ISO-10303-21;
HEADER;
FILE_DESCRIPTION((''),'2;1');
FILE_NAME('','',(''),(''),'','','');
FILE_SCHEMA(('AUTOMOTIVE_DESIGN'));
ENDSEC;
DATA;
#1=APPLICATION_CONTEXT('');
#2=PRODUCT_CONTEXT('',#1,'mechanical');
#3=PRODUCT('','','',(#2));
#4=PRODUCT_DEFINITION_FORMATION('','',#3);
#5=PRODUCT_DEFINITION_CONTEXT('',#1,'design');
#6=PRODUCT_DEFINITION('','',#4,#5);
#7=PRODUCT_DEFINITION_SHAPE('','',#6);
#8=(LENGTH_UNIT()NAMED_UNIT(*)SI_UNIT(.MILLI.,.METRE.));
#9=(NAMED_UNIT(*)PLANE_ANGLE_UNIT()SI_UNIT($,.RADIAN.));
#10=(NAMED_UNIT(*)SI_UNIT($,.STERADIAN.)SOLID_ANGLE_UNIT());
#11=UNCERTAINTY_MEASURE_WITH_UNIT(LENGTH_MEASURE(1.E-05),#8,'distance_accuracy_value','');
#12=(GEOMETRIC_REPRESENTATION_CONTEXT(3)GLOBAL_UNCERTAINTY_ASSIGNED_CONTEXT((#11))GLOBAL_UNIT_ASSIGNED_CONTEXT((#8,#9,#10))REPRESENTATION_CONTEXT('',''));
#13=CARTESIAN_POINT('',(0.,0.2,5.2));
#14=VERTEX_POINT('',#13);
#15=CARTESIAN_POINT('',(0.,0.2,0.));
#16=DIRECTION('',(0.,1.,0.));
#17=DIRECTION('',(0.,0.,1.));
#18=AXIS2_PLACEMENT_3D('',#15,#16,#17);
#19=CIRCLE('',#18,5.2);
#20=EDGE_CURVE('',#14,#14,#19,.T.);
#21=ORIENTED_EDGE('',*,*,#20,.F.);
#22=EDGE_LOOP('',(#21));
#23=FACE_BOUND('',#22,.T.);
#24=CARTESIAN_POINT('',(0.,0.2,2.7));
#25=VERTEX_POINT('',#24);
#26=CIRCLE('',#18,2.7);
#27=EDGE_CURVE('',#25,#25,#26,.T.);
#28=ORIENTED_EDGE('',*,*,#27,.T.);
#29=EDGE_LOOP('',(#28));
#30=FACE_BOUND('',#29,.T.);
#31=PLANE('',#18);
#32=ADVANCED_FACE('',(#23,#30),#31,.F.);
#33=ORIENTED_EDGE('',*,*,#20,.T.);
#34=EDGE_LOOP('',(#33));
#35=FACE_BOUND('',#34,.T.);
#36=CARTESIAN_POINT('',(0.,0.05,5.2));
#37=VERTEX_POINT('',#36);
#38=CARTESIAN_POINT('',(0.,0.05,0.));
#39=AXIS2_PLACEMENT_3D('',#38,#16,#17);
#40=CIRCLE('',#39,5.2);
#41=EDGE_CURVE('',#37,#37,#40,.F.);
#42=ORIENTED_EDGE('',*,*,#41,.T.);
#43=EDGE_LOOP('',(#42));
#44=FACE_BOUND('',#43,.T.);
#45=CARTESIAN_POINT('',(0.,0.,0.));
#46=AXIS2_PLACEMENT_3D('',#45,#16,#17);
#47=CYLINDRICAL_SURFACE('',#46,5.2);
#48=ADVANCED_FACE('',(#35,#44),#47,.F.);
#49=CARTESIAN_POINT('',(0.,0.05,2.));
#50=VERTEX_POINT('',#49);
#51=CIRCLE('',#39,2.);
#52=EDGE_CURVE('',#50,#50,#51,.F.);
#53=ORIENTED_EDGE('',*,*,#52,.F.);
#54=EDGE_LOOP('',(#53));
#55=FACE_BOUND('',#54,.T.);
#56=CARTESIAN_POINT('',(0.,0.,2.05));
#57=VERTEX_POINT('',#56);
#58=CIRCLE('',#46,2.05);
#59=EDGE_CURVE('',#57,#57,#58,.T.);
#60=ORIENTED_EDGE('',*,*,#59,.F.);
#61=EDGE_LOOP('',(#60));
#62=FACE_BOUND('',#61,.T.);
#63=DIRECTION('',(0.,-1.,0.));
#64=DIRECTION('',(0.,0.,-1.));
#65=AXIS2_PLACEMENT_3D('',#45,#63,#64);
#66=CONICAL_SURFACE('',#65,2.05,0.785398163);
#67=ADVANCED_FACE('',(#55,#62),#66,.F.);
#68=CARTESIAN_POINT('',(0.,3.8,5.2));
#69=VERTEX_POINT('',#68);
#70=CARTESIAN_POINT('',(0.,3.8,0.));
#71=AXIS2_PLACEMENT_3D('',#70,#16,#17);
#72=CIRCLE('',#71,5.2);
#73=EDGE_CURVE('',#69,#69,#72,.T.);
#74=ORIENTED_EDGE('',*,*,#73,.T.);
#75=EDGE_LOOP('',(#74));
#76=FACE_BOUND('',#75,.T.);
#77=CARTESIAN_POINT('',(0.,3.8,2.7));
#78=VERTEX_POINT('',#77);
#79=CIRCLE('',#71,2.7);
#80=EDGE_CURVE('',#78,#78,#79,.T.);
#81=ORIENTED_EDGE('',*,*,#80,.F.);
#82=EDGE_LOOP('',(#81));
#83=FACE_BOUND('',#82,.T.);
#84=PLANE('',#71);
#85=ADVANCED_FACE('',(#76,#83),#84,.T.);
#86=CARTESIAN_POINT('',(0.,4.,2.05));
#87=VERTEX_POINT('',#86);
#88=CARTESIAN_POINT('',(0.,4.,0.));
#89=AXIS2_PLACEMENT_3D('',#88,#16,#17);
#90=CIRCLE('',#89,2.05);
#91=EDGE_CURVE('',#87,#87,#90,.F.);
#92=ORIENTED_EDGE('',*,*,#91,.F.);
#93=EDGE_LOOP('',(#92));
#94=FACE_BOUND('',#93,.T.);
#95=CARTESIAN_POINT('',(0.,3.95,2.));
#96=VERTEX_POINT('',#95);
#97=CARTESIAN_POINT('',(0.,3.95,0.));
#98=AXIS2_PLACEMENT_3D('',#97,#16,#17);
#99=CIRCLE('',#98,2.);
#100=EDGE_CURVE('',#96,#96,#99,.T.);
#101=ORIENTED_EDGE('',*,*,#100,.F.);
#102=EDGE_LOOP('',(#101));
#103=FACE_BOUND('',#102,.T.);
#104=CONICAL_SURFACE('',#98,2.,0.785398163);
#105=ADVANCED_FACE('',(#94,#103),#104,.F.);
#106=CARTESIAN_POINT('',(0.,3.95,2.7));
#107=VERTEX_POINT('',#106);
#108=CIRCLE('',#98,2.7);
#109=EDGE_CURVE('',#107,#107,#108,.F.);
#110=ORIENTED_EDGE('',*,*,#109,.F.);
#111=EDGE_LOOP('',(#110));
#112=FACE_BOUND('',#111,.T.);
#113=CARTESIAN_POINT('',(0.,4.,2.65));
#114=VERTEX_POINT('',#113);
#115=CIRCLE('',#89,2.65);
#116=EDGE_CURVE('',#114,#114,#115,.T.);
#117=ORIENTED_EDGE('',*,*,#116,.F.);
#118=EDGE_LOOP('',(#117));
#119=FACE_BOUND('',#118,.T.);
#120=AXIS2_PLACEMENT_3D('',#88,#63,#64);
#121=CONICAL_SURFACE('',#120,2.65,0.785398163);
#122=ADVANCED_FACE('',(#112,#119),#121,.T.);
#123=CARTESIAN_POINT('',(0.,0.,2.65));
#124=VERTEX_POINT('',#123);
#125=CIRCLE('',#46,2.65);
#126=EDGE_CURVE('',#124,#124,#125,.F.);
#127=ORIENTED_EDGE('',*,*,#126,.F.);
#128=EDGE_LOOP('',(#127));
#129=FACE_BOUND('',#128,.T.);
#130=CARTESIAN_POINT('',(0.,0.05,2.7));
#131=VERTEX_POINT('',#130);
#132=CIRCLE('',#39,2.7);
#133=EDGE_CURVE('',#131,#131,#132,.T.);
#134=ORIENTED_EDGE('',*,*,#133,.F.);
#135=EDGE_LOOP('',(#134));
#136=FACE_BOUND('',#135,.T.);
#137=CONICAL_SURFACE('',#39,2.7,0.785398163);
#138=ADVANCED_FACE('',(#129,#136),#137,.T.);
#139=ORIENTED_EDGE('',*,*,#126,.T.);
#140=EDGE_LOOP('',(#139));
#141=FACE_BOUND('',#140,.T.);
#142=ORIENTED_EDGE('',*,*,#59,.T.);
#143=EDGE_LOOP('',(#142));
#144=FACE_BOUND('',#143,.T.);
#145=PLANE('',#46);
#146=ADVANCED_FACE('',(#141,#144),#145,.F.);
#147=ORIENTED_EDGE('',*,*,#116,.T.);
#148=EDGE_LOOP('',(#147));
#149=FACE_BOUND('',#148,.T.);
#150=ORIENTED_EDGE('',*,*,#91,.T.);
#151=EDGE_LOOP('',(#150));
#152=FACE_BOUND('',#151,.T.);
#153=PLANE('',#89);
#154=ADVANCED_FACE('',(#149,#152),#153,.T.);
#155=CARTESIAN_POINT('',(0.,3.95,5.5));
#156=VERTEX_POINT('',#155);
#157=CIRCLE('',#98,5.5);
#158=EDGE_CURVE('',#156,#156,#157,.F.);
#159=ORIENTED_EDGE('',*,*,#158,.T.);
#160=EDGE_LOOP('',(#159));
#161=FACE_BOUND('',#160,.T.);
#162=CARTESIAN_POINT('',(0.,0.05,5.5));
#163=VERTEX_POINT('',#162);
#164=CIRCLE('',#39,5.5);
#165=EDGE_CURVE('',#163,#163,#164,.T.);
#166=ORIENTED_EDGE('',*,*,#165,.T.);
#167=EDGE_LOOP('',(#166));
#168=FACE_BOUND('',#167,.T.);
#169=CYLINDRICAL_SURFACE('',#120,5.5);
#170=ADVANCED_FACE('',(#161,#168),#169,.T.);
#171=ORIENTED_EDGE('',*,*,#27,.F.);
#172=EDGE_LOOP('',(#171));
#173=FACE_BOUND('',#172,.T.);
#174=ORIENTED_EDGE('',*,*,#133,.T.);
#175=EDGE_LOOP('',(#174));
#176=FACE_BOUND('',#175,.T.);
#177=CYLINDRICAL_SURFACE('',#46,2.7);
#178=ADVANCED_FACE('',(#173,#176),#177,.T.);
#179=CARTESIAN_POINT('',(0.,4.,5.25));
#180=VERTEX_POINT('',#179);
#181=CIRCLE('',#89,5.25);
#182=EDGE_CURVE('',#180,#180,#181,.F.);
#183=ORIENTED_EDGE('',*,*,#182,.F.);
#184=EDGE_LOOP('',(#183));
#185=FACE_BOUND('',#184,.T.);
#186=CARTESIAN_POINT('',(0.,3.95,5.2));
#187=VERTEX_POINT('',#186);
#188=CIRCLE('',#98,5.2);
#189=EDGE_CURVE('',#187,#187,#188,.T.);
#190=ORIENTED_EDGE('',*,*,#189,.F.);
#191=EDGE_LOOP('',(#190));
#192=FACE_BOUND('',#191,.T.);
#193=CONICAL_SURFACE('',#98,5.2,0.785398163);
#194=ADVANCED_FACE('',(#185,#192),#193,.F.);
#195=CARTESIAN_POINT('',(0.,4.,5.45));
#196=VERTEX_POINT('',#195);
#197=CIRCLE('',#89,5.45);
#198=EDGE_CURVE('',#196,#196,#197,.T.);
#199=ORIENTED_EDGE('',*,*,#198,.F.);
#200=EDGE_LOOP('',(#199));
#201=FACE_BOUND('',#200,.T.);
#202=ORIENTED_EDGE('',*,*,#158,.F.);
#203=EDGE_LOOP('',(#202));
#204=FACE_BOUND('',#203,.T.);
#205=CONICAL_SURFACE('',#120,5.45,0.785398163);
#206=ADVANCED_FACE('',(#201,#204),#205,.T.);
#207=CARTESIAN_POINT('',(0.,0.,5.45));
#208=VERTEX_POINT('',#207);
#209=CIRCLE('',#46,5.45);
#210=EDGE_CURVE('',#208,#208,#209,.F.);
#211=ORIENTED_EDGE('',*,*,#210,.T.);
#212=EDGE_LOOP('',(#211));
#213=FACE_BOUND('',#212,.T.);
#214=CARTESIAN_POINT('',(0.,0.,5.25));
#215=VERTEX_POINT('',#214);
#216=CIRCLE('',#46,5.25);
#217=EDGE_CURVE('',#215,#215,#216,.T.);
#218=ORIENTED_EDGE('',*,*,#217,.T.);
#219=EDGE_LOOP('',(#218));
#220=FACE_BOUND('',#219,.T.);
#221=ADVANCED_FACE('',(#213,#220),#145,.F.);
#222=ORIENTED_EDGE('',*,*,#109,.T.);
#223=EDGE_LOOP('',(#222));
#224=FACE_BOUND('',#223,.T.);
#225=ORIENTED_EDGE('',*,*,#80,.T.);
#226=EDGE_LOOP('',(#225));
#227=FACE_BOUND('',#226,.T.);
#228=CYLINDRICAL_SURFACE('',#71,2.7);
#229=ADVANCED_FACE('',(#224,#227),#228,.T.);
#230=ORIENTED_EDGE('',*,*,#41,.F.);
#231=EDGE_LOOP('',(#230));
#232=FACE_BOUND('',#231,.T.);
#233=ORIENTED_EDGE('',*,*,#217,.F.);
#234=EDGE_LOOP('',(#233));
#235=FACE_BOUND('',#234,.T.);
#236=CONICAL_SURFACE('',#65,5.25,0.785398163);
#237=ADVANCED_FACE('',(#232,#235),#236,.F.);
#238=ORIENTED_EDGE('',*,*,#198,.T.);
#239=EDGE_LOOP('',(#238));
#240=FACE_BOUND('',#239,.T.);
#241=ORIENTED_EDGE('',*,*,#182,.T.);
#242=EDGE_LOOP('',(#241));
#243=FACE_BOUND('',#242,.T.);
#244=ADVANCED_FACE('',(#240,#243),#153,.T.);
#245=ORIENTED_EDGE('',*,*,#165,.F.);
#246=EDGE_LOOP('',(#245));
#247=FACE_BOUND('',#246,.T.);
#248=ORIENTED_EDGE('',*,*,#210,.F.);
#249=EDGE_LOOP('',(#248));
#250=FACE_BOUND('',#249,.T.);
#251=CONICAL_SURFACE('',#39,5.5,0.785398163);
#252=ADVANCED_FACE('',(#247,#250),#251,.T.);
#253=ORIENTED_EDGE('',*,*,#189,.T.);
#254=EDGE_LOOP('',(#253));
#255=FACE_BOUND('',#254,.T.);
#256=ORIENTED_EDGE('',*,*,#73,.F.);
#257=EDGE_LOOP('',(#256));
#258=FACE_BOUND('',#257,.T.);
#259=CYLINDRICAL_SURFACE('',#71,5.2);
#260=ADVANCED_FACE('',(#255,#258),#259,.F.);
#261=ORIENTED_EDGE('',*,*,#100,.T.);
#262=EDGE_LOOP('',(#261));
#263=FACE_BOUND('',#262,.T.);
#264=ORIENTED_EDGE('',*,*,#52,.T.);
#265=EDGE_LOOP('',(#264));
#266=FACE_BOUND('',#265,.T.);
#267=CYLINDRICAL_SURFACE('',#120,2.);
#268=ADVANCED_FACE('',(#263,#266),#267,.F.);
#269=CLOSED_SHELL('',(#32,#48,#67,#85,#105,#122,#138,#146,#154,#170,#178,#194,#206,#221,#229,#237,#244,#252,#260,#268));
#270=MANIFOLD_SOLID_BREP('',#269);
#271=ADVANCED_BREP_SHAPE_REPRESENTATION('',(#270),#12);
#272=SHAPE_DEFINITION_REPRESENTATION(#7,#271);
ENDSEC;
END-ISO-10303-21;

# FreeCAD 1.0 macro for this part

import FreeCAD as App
import Part
import Sketcher
Q = App.Units.Quantity


def edges_at(feature, points):
    """Names of the edges that pass closest to the given points."""
    edges = feature.Shape.Edges
    near = lambda p: min(range(len(edges)), key=lambda i: edges[i].distToShape(Part.Vertex(*p))[0])
    return sorted({f"Edge{near(p) + 1}" for p in points})

doc = App.newDocument("Part")
body = doc.addObject("PartDesign::Body", "Body")

# Sketch on XZ plane
sketch1 = body.newObject("Sketcher::SketchObject", "Sketch")
sketch1.AttachmentSupport = (doc.getObject("XZ_Plane"), [""])
sketch1.MapMode = "FlatFace"
sketch1.addGeometry([
    Part.Circle(App.Vector(0, 0, 0), App.Vector(0, 0, 1), 5.5),
    Part.Circle(App.Vector(0, 0, 0), App.Vector(0, 0, 1), 2),
], False)
sketch1.addConstraint([
    Sketcher.Constraint("Coincident", 0, 3, -1, 1),
    Sketcher.Constraint("Coincident", 1, 3, -1, 1),
    Sketcher.Constraint("Diameter", 0, Q("11 mm")),
    Sketcher.Constraint("Diameter", 1, Q("4 mm")),
])
pad1 = body.newObject("PartDesign::Pad", "Pad")
pad1.Profile = sketch1
pad1.Length = 4
pad1.Reversed = True

# Sketch on XZ plane
sketch2 = body.newObject("Sketcher::SketchObject", "Sketch001")
sketch2.AttachmentSupport = (doc.getObject("XZ_Plane"), [""])
sketch2.MapMode = "FlatFace"
sketch2.AttachmentOffset = App.Placement(App.Vector(0, 0, -4), App.Rotation())
sketch2.addGeometry([
    Part.Circle(App.Vector(0, 0, 0), App.Vector(0, 0, 1), 5.2),
    Part.Circle(App.Vector(0, 0, 0), App.Vector(0, 0, 1), 2.7),
], False)
sketch2.addConstraint([
    Sketcher.Constraint("Coincident", 0, 3, -1, 1),
    Sketcher.Constraint("Coincident", 1, 3, -1, 1),
    Sketcher.Constraint("Diameter", 0, Q("10.4 mm")),
    Sketcher.Constraint("Diameter", 1, Q("5.4 mm")),
])
pocket1 = body.newObject("PartDesign::Pocket", "Pocket")
pocket1.Profile = sketch2
pocket1.Length = 0.2
pocket1.Reversed = True

# Sketch on XZ plane
sketch3 = body.newObject("Sketcher::SketchObject", "Sketch002")
sketch3.AttachmentSupport = (doc.getObject("XZ_Plane"), [""])
sketch3.MapMode = "FlatFace"
sketch3.AttachmentOffset = App.Placement(App.Vector(0, 0, -0.2), App.Rotation())
sketch3.addGeometry([
    Part.Circle(App.Vector(0, 0, 0), App.Vector(0, 0, 1), 5.2),
    Part.Circle(App.Vector(0, 0, 0), App.Vector(0, 0, 1), 2.7),
], False)
sketch3.addConstraint([
    Sketcher.Constraint("Coincident", 0, 3, -1, 1),
    Sketcher.Constraint("Coincident", 1, 3, -1, 1),
    Sketcher.Constraint("Diameter", 0, Q("10.4 mm")),
    Sketcher.Constraint("Diameter", 1, Q("5.4 mm")),
])
pocket2 = body.newObject("PartDesign::Pocket", "Pocket001")
pocket2.Profile = sketch3
pocket2.Type = "ThroughAll"
pocket2.Reversed = True
doc.recompute()

chamfer = body.newObject("PartDesign::Chamfer", "Chamfer")
chamfer.Base = (pocket2, edges_at(pocket2, [
    (0, 4, -5.2),
    (0, 4, -2.7),
    (0, 0, -5.2),
    (0, 0, -2.7),
    (0, 0, -5.5),
    (0, 4, -5.5),
    (0, 0, -2),
    (0, 4, -2),
]))
chamfer.Size = 0.05

doc.recompute()
